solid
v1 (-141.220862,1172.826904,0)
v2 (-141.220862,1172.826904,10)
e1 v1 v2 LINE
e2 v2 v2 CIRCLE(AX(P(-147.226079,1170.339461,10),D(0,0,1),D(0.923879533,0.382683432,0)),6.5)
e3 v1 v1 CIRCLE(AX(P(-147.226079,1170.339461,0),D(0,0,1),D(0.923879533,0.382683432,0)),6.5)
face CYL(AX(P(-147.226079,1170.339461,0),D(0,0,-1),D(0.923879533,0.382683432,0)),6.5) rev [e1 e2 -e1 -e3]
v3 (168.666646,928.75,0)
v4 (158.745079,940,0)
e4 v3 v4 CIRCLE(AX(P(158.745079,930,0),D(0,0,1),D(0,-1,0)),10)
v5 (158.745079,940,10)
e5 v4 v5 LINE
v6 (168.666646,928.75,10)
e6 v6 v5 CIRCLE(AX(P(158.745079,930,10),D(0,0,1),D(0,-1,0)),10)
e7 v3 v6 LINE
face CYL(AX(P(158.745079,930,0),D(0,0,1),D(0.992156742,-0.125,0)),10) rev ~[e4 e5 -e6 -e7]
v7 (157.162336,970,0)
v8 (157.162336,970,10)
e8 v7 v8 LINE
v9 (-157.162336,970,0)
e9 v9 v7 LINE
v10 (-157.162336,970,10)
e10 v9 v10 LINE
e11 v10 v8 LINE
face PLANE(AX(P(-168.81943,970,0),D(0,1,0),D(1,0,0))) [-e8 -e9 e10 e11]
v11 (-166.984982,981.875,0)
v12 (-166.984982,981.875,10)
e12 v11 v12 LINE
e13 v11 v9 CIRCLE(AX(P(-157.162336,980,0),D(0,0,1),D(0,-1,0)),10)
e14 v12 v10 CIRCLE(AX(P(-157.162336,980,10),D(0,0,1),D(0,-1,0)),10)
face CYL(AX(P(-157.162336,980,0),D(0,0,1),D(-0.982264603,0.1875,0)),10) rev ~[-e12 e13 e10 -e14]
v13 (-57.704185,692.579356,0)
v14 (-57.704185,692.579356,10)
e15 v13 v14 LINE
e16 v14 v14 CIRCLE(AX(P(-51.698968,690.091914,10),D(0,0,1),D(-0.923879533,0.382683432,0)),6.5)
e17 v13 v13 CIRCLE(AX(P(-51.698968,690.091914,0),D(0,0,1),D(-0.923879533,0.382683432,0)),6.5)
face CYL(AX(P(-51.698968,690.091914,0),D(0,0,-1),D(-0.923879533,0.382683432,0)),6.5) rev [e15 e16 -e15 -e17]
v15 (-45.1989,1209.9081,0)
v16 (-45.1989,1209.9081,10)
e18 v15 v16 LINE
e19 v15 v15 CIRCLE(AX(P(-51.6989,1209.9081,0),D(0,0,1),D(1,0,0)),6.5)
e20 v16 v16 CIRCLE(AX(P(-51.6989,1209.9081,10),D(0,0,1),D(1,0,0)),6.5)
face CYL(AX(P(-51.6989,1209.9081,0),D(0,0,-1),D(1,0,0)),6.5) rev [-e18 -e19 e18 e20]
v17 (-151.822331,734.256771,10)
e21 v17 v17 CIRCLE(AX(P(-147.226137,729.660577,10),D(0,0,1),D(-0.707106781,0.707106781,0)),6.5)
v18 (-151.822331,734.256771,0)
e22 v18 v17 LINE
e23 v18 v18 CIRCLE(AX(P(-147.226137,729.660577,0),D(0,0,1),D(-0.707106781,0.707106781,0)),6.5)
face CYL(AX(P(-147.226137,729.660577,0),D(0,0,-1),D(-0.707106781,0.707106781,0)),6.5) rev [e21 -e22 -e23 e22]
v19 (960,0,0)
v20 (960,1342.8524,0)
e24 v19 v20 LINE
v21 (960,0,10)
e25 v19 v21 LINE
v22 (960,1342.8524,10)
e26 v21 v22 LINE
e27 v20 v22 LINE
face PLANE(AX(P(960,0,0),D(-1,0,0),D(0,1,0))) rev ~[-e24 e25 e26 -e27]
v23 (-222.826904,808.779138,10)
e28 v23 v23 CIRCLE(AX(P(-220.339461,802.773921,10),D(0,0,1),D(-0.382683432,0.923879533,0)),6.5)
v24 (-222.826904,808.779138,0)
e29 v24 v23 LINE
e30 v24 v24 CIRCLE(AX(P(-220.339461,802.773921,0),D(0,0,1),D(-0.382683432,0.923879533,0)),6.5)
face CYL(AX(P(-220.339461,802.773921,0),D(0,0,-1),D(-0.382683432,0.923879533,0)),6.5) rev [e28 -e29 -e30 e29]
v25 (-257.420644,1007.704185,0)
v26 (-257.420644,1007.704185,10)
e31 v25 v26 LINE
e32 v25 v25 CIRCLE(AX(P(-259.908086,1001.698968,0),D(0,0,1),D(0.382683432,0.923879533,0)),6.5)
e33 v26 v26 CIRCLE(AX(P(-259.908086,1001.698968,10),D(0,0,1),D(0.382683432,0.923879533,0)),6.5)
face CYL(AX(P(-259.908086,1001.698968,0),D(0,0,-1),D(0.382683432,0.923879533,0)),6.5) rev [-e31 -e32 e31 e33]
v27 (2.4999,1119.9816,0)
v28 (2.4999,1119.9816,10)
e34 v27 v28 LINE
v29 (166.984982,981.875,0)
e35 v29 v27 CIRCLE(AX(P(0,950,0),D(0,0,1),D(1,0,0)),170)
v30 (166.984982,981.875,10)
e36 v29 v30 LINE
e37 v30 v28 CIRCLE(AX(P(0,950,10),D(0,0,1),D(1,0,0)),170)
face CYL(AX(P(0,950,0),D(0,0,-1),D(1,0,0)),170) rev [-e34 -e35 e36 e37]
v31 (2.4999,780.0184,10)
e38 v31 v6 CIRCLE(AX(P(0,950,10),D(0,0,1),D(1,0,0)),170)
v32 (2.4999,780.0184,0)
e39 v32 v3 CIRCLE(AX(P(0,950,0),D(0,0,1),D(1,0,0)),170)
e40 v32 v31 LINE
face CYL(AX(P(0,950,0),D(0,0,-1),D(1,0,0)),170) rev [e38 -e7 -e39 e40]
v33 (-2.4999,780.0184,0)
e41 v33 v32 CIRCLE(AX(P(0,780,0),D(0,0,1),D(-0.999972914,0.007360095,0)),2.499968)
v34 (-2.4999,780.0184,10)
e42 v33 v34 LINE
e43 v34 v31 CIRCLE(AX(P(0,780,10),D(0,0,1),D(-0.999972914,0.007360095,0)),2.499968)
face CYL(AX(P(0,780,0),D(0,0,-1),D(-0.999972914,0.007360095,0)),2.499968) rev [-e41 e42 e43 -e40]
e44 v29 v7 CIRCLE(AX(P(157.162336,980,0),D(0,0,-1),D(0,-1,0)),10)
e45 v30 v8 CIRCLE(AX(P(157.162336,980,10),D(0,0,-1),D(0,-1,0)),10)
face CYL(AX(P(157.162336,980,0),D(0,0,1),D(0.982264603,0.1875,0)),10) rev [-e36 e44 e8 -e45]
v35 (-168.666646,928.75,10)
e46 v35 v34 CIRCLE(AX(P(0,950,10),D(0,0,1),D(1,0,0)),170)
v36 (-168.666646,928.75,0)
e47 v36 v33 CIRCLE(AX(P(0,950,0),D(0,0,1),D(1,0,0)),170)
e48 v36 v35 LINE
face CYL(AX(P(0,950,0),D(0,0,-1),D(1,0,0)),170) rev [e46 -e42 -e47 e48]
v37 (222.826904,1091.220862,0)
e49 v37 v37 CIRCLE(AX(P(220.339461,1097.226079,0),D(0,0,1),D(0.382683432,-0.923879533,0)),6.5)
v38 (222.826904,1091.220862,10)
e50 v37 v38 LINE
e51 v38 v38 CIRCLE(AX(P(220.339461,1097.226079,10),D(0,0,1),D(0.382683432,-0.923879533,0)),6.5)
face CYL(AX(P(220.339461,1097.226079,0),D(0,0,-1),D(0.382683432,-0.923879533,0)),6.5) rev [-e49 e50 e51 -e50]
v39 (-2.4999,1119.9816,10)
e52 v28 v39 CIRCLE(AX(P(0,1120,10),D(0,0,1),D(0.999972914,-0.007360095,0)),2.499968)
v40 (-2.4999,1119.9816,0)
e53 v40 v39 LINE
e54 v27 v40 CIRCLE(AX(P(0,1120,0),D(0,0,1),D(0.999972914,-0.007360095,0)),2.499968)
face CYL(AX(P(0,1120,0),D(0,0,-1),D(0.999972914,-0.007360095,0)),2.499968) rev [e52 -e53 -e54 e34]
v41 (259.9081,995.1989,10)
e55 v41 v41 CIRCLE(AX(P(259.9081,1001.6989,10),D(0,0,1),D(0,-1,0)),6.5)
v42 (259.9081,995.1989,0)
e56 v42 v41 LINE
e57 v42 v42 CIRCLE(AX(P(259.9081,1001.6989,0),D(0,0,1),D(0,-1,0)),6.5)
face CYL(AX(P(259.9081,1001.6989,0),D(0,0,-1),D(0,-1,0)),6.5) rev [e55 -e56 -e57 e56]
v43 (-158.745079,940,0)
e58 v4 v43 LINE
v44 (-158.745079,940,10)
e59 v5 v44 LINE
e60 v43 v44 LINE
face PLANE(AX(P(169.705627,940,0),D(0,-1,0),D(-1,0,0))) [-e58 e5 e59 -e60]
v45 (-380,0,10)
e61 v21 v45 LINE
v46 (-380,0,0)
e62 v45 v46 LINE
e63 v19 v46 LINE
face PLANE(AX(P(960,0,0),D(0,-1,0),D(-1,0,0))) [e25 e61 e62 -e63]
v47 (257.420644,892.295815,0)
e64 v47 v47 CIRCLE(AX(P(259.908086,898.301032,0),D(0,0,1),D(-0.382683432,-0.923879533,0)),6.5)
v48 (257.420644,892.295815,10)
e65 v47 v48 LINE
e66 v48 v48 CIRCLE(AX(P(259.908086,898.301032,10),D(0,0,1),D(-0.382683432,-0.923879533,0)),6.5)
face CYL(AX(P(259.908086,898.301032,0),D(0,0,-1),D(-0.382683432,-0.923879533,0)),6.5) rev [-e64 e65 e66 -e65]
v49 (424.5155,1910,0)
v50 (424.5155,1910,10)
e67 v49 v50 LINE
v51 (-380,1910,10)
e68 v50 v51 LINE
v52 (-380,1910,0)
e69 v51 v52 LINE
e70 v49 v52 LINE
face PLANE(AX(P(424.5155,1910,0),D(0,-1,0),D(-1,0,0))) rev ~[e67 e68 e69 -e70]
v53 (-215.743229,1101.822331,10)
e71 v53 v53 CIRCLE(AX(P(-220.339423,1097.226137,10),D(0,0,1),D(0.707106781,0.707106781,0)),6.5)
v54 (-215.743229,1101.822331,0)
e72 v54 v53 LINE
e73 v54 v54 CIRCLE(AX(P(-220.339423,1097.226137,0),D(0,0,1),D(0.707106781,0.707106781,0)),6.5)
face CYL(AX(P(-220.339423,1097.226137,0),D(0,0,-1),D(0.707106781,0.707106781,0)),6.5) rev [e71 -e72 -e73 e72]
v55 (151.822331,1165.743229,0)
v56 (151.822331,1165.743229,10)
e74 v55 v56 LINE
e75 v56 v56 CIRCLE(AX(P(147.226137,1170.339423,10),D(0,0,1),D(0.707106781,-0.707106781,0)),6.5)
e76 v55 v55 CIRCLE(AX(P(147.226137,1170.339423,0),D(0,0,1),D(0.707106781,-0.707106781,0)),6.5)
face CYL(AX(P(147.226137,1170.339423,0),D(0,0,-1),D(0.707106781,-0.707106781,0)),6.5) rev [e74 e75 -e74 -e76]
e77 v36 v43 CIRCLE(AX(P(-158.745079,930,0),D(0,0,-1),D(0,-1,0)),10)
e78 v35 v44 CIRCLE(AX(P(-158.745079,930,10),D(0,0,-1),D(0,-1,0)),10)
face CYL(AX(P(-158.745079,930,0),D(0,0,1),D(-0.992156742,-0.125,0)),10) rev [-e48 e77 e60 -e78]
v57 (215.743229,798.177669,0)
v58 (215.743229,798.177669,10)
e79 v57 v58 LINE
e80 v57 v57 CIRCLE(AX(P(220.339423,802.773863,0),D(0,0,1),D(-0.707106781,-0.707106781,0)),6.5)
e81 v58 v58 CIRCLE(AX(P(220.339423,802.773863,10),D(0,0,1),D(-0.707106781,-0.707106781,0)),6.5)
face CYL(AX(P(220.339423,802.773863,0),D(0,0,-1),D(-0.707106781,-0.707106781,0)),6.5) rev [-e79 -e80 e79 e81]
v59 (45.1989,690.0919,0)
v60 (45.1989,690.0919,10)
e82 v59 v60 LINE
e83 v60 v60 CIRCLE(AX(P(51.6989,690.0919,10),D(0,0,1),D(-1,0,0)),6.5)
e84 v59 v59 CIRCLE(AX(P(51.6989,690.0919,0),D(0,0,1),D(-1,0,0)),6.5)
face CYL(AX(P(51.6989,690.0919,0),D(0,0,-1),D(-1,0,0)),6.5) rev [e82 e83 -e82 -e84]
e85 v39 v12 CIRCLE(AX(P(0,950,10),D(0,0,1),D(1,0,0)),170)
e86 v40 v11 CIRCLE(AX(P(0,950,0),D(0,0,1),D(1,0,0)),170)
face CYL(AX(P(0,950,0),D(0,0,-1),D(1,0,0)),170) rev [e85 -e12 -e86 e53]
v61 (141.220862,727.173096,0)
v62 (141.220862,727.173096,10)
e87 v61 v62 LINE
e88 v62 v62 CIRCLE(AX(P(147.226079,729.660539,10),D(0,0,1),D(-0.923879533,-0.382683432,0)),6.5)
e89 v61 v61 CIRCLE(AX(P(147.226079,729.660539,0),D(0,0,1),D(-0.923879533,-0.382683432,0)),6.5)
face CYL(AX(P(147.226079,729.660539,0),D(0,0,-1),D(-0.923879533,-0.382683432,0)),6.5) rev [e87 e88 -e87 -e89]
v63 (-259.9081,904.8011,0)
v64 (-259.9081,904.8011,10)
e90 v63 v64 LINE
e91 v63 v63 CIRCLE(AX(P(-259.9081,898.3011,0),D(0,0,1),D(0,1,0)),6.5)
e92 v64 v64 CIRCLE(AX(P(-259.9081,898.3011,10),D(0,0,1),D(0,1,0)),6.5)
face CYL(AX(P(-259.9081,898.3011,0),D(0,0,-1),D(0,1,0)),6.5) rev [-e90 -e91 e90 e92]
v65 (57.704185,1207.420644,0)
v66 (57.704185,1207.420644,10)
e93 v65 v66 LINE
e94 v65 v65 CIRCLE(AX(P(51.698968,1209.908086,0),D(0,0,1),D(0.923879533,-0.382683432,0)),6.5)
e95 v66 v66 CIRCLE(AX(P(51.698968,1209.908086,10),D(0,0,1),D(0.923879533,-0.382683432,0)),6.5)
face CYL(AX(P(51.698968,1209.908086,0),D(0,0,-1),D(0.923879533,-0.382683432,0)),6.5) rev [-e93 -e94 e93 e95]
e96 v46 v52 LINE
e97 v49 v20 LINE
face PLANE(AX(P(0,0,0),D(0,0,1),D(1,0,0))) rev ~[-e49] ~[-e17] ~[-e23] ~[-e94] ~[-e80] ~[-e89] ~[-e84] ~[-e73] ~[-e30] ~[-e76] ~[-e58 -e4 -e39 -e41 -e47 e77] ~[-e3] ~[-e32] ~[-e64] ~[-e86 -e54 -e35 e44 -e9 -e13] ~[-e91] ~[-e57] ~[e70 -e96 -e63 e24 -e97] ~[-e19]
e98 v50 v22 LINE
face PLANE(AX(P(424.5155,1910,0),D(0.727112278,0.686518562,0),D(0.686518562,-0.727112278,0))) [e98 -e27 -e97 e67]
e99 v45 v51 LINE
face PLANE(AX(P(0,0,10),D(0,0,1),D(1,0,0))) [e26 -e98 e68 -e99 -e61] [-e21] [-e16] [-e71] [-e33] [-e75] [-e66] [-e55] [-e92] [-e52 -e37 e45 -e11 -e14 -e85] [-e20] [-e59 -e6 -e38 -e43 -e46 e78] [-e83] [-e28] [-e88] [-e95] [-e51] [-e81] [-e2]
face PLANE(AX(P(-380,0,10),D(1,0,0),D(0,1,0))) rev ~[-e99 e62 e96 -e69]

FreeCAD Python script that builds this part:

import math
import FreeCAD as App
import Part
import Sketcher

V = App.Vector
Q = App.Units.Quantity


def edges_at(feature, points):
    """Names of the edges that pass closest to the given points."""
    edges = feature.Shape.Edges
    near = lambda p: min(range(len(edges)), key=lambda i: edges[i].distToShape(Part.Vertex(*p))[0])
    return sorted({f"Edge{near(p) + 1}" for p in points})

doc = App.newDocument("Part")
body = doc.addObject("PartDesign::Body", "Body")

sketch1 = body.newObject("Sketcher::SketchObject", "Sketch")
sketch1.AttachmentSupport = (doc.getObject("XY_Plane"), [""])
sketch1.MapMode = "FlatFace"
sketch1.addGeometry([
    Part.LineSegment(V(960, 1342.9, 0), V(424.5, 1910, 0)),
    Part.LineSegment(V(424.5, 1910, 0), V(-415.5, 1910, 0)),
    Part.LineSegment(V(-415.5, 1910, 0), V(-1180, 1150, 0)),
    Part.LineSegment(V(-1180, 1150, 0), V(-1180, 0, 0)),
    Part.LineSegment(V(-1180, 0, 0), V(960, 0, 0)),
    Part.LineSegment(V(960, 0, 0), V(960, 1342.9, 0)),
    Part.Circle(V(-800, 80, 0), V(0, 0, 1), 55),
    Part.ArcOfCircle(Part.Circle(V(0, 950, 0), V(0, 0, 1), 170), math.radians(7), math.radians(89)),
    Part.LineSegment(V(168.8, 970, 0), V(-168.8, 970, 0)),
    Part.ArcOfCircle(Part.Circle(V(0, 950, 0), V(0, 0, 1), 170), math.radians(91), math.radians(173)),
    Part.ArcOfCircle(Part.Circle(V(0, 1120, 0), V(0, 0, 1), 2.5), math.radians(0), math.radians(180)),
    Part.ArcOfCircle(Part.Circle(V(0, 950, 0), V(0, 0, 1), 170), math.radians(-177), math.radians(-91)),
    Part.LineSegment(V(-169.7, 940, 0), V(169.7, 940, 0)),
    Part.ArcOfCircle(Part.Circle(V(0, 950, 0), V(0, 0, 1), 170), math.radians(-89), math.radians(-3)),
    Part.ArcOfCircle(Part.Circle(V(0, 780, 0), V(0, 0, 1), 2.5), math.radians(180), math.radians(360)),
], False)
sketch1.addConstraint([
    Sketcher.Constraint("Coincident", 0, 2, 1, 1),
    Sketcher.Constraint("Coincident", 1, 2, 2, 1),
    Sketcher.Constraint("Coincident", 2, 2, 3, 1),
    Sketcher.Constraint("Coincident", 3, 2, 4, 1),
    Sketcher.Constraint("Coincident", 4, 2, 5, 1),
    Sketcher.Constraint("Coincident", 5, 2, 0, 1),
    Sketcher.Constraint("Coincident", 7, 1, 8, 1),
    Sketcher.Constraint("Coincident", 8, 2, 9, 2),
    Sketcher.Constraint("Coincident", 9, 1, 10, 2),
    Sketcher.Constraint("Coincident", 10, 1, 7, 2),
    Sketcher.Constraint("Coincident", 11, 1, 12, 1),
    Sketcher.Constraint("Coincident", 12, 2, 13, 2),
    Sketcher.Constraint("Coincident", 13, 1, 14, 2),
    Sketcher.Constraint("Coincident", 14, 1, 11, 2),
    Sketcher.Constraint("Horizontal", 1),
    Sketcher.Constraint("Vertical", 3),
    Sketcher.Constraint("Horizontal", 4),
    Sketcher.Constraint("Vertical", 5),
    Sketcher.Constraint("Horizontal", 8),
    Sketcher.Constraint("Horizontal", 12),
    Sketcher.Constraint("Coincident", 9, 3, 7, 3),
    Sketcher.Constraint("Coincident", 11, 3, 7, 3),
    Sketcher.Constraint("Coincident", 13, 3, 7, 3),
    Sketcher.Constraint("Equal", 7, 9),
    Sketcher.Constraint("Equal", 9, 11),
    Sketcher.Constraint("Equal", 11, 13),
    Sketcher.Constraint("Equal", 10, 14),
    Sketcher.Constraint("Symmetric", 9, 1, 10, 1, -2),
    Sketcher.Constraint("PointOnObject", 14, 3, -2),
    Sketcher.Constraint("PointOnObject", 3, 2, -1),
    Sketcher.Constraint("Diameter", 6, Q("110 mm")),
    Sketcher.Constraint("Radius", 7, Q("170 mm")),
    Sketcher.Constraint("Radius", 10, Q("2.5 mm")),
    Sketcher.Constraint("DistanceX", 1, 2, 1, 1, Q("840 mm")),
    Sketcher.Constraint("DistanceX", 4, 1, 4, 2, Q("2140 mm")),
    Sketcher.Constraint("DistanceY", 3, 2, 3, 1, Q("1150 mm")),
    Sketcher.Constraint("Distance", 0, Q("780 mm")),
    Sketcher.Constraint("Distance", 2, Q("1078 mm")),
    Sketcher.Constraint("DistanceY", -1, 1, 6, 3, Q("80 mm")),
    Sketcher.Constraint("DistanceY", -1, 1, 7, 3, Q("950 mm")),
    Sketcher.Constraint("DistanceY", -1, 1, 14, 3, Q("780 mm")),
    Sketcher.Constraint("DistanceY", -1, 1, 0, 2, Q("1910 mm")),
    Sketcher.Constraint("DistanceX", 2, 2, -1, 1, Q("1180 mm")),
    Sketcher.Constraint("DistanceY", 14, 3, 10, 3, Q("340 mm")),
    Sketcher.Constraint("DistanceX", 2, 2, 6, 3, Q("380 mm")),
    Sketcher.Constraint("DistanceY", 11, 1, 8, 2, Q("30 mm")),
    Sketcher.Constraint("DistanceY", 11, 1, 7, 3, Q("10 mm")),
])
pad1 = body.newObject("PartDesign::Pad", "Pad")
pad1.Profile = sketch1
pad1.Length = 10
doc.recompute()

fillet = body.newObject("PartDesign::Fillet", "Fillet")
fillet.Base = (pad1, edges_at(pad1, [
    (-168.819, 970, 5),
    (-169.706, 940, 5),
    (168.819, 970, 5),
    (169.706, 940, 5),
]))
fillet.Radius = 10

sketch2 = body.newObject("Sketcher::SketchObject", "Sketch001")
sketch2.AttachmentSupport = (doc.getObject("XY_Plane"), [""])
sketch2.MapMode = "FlatFace"
sketch2.addGeometry(Part.Circle(V(-52, 1210, 0), V(0, 0, 1), 6), False)
sketch2.addConstraint([
    Sketcher.Constraint("Diameter", 0, Q("13 mm")),
    Sketcher.Constraint("DistanceX", 0, 3, -1, 1, Q("51.699 mm")),
    Sketcher.Constraint("DistanceY", -1, 1, 0, 3, Q("1209.908 mm")),
])
pocket1 = body.newObject("PartDesign::Pocket", "Pocket")
pocket1.Profile = sketch2
pocket1.Length = 10
pocket1.Reversed = True
doc.recompute()

datumline = body.newObject("PartDesign::Line", "DatumLine")
datumline.Placement = App.Placement(V(0, 950, 0), App.Rotation(V(0, 0, 1), V(0, 0, 1)))
polarpattern = body.newObject("PartDesign::PolarPattern", "PolarPattern")
polarpattern.Originals = [pocket1]
polarpattern.Axis = (datumline, [""])
polarpattern.Angle = 360
polarpattern.Occurrences = 16
body.Tip = polarpattern

sketch3 = body.newObject("Sketcher::SketchObject", "Sketch002")
sketch3.AttachmentSupport = (doc.getObject("XY_Plane"), [""])
sketch3.MapMode = "FlatFace"
sketch3.AttachmentOffset = App.Placement(V(0, 0, 10), App.Rotation())
sketch3.addGeometry([
    Part.LineSegment(V(-380, 0, 0), V(-380, 1910, 0)),
    Part.LineSegment(V(-380, 1910, 0), V(-415, 1910, 0)),
    Part.LineSegment(V(-415, 1910, 0), V(-1180, 1150, 0)),
    Part.LineSegment(V(-1180, 1150, 0), V(-1180, 0, 0)),
    Part.LineSegment(V(-1180, 0, 0), V(-380, 0, 0)),
    Part.Circle(V(-800, 80, 0), V(0, 0, 1), 55),
], False)
sketch3.addConstraint([
    Sketcher.Constraint("Coincident", 0, 2, 1, 1),
    Sketcher.Constraint("Coincident", 1, 2, 2, 1),
    Sketcher.Constraint("Coincident", 2, 2, 3, 1),
    Sketcher.Constraint("Coincident", 3, 2, 4, 1),
    Sketcher.Constraint("Coincident", 4, 2, 0, 1),
    Sketcher.Constraint("Vertical", 0),
    Sketcher.Constraint("Horizontal", 1),
    Sketcher.Constraint("Vertical", 3),
    Sketcher.Constraint("Horizontal", 4),
    Sketcher.Constraint("PointOnObject", 3, 2, -1),
    Sketcher.Constraint("Diameter", 5, Q("110 mm")),
    Sketcher.Constraint("DistanceX", 4, 1, 4, 2, Q("800 mm")),
    Sketcher.Constraint("DistanceY", 0, 1, 0, 2, Q("1910 mm")),
    Sketcher.Constraint("DistanceY", 3, 2, 3, 1, Q("1150 mm")),
    Sketcher.Constraint("Distance", 2, Q("1078 mm")),
    Sketcher.Constraint("DistanceX", 5, 3, -1, 1, Q("800 mm")),
    Sketcher.Constraint("DistanceY", -1, 1, 5, 3, Q("80 mm")),
    Sketcher.Constraint("DistanceX", 0, 2, -1, 1, Q("380 mm")),
])
pocket2 = body.newObject("PartDesign::Pocket", "Pocket001")
pocket2.Profile = sketch3
pocket2.Type = "ThroughAll"

doc.recompute()
